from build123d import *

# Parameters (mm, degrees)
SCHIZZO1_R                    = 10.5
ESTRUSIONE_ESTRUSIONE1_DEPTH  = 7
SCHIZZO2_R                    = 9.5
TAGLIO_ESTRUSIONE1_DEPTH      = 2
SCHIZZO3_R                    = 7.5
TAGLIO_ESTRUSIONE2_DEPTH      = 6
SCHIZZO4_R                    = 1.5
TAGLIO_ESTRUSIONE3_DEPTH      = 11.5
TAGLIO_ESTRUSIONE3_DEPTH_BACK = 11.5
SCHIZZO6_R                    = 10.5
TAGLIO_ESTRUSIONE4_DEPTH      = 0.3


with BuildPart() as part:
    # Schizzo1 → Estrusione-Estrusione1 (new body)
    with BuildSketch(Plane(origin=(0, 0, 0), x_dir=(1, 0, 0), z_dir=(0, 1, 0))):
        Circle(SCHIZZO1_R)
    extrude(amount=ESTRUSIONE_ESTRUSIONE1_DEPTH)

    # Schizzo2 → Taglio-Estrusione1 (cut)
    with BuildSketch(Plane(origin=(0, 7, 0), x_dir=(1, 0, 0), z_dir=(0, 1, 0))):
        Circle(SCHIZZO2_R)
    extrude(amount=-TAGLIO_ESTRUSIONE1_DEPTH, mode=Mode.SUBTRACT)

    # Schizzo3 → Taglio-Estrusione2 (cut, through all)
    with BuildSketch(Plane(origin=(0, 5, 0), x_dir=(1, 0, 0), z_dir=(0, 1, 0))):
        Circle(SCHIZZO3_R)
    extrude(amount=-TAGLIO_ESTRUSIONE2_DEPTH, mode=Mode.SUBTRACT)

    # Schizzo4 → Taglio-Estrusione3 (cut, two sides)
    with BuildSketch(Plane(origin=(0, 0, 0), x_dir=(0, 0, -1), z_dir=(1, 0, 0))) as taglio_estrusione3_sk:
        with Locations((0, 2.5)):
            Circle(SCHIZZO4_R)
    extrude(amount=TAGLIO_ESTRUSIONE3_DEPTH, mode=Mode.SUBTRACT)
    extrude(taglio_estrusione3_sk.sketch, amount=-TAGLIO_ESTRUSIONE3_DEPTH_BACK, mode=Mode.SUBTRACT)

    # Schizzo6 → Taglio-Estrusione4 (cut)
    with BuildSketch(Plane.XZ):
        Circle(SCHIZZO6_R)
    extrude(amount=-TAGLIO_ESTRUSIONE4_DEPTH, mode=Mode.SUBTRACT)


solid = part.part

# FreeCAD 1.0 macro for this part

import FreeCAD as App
import Part
import Sketcher
from FreeCAD import Vector

doc = App.newDocument("Part")
body = doc.addObject("PartDesign::Body", "Body")

sketch1 = body.newObject("Sketcher::SketchObject", "Sketch")
sketch1.AttachmentSupport = (doc.getObject("XZ_Plane"), [""])
sketch1.MapMode = "FlatFace"
sketch1.addGeometry(Part.Circle(Vector(0, 0, 0), Vector(0, 0, 1), 10.5), False)
sketch1.addConstraint(Sketcher.Constraint("Coincident", 0, 3, -1, 1))
sketch1.addConstraint(Sketcher.Constraint("Diameter", 0, 21.0))
pad1 = body.newObject("PartDesign::Pad", "Pad")
pad1.Profile = sketch1
pad1.Length = 7
pad1.Reversed = True

sketch2 = body.newObject("Sketcher::SketchObject", "Sketch001")
sketch2.AttachmentSupport = (doc.getObject("XZ_Plane"), [""])
sketch2.MapMode = "FlatFace"
sketch2.AttachmentOffset = App.Placement(Vector(0, 0, -7), App.Rotation())
sketch2.addGeometry(Part.Circle(Vector(0, 0, 0), Vector(0, 0, 1), 9.5), False)
sketch2.addConstraint(Sketcher.Constraint("Coincident", 0, 3, -1, 1))
sketch2.addConstraint(Sketcher.Constraint("Diameter", 0, 19.0))
pocket1 = body.newObject("PartDesign::Pocket", "Pocket")
pocket1.Profile = sketch2
pocket1.Length = 2
pocket1.Reversed = True

sketch3 = body.newObject("Sketcher::SketchObject", "Sketch002")
sketch3.AttachmentSupport = (doc.getObject("XZ_Plane"), [""])
sketch3.MapMode = "FlatFace"
sketch3.AttachmentOffset = App.Placement(Vector(0, 0, -5), App.Rotation())
sketch3.addGeometry(Part.Circle(Vector(0, 0, 0), Vector(0, 0, 1), 7.5), False)
sketch3.addConstraint(Sketcher.Constraint("Coincident", 0, 3, -1, 1))
sketch3.addConstraint(Sketcher.Constraint("Diameter", 0, 15.0))
pocket2 = body.newObject("PartDesign::Pocket", "Pocket001")
pocket2.Profile = sketch3
pocket2.Type = "ThroughAll"
pocket2.Reversed = True

sketch4 = body.newObject("Sketcher::SketchObject", "Sketch003")
sketch4.AttachmentSupport = (doc.getObject("YZ_Plane"), [""])
sketch4.MapMode = "FlatFace"
sketch4.addGeometry(Part.Circle(Vector(2.5, 0, 0), Vector(0, 0, 1), 1.5), False)
sketch4.addConstraint(Sketcher.Constraint("PointOnObject", 0, 3, -1))
sketch4.addConstraint(Sketcher.Constraint("Diameter", 0, 3.0))
sketch4.addConstraint(Sketcher.Constraint("DistanceX", -1, 1, 0, 3, 2.5))
pocket3 = body.newObject("PartDesign::Pocket", "Pocket002")
pocket3.Profile = sketch4
pocket3.Type = "ThroughAll"
pocket3.Midplane = True

sketch5 = body.newObject("Sketcher::SketchObject", "Sketch004")
sketch5.AttachmentSupport = (doc.getObject("XZ_Plane"), [""])
sketch5.MapMode = "FlatFace"
sketch5.addGeometry(Part.Circle(Vector(0, 0, 0), Vector(0, 0, 1), 10.5), False)
sketch5.addConstraint(Sketcher.Constraint("Coincident", 0, 3, -1, 1))
sketch5.addConstraint(Sketcher.Constraint("Diameter", 0, 21.0))
pocket4 = body.newObject("PartDesign::Pocket", "Pocket003")
pocket4.Profile = sketch5
pocket4.Length = 0.3

doc.recompute()
